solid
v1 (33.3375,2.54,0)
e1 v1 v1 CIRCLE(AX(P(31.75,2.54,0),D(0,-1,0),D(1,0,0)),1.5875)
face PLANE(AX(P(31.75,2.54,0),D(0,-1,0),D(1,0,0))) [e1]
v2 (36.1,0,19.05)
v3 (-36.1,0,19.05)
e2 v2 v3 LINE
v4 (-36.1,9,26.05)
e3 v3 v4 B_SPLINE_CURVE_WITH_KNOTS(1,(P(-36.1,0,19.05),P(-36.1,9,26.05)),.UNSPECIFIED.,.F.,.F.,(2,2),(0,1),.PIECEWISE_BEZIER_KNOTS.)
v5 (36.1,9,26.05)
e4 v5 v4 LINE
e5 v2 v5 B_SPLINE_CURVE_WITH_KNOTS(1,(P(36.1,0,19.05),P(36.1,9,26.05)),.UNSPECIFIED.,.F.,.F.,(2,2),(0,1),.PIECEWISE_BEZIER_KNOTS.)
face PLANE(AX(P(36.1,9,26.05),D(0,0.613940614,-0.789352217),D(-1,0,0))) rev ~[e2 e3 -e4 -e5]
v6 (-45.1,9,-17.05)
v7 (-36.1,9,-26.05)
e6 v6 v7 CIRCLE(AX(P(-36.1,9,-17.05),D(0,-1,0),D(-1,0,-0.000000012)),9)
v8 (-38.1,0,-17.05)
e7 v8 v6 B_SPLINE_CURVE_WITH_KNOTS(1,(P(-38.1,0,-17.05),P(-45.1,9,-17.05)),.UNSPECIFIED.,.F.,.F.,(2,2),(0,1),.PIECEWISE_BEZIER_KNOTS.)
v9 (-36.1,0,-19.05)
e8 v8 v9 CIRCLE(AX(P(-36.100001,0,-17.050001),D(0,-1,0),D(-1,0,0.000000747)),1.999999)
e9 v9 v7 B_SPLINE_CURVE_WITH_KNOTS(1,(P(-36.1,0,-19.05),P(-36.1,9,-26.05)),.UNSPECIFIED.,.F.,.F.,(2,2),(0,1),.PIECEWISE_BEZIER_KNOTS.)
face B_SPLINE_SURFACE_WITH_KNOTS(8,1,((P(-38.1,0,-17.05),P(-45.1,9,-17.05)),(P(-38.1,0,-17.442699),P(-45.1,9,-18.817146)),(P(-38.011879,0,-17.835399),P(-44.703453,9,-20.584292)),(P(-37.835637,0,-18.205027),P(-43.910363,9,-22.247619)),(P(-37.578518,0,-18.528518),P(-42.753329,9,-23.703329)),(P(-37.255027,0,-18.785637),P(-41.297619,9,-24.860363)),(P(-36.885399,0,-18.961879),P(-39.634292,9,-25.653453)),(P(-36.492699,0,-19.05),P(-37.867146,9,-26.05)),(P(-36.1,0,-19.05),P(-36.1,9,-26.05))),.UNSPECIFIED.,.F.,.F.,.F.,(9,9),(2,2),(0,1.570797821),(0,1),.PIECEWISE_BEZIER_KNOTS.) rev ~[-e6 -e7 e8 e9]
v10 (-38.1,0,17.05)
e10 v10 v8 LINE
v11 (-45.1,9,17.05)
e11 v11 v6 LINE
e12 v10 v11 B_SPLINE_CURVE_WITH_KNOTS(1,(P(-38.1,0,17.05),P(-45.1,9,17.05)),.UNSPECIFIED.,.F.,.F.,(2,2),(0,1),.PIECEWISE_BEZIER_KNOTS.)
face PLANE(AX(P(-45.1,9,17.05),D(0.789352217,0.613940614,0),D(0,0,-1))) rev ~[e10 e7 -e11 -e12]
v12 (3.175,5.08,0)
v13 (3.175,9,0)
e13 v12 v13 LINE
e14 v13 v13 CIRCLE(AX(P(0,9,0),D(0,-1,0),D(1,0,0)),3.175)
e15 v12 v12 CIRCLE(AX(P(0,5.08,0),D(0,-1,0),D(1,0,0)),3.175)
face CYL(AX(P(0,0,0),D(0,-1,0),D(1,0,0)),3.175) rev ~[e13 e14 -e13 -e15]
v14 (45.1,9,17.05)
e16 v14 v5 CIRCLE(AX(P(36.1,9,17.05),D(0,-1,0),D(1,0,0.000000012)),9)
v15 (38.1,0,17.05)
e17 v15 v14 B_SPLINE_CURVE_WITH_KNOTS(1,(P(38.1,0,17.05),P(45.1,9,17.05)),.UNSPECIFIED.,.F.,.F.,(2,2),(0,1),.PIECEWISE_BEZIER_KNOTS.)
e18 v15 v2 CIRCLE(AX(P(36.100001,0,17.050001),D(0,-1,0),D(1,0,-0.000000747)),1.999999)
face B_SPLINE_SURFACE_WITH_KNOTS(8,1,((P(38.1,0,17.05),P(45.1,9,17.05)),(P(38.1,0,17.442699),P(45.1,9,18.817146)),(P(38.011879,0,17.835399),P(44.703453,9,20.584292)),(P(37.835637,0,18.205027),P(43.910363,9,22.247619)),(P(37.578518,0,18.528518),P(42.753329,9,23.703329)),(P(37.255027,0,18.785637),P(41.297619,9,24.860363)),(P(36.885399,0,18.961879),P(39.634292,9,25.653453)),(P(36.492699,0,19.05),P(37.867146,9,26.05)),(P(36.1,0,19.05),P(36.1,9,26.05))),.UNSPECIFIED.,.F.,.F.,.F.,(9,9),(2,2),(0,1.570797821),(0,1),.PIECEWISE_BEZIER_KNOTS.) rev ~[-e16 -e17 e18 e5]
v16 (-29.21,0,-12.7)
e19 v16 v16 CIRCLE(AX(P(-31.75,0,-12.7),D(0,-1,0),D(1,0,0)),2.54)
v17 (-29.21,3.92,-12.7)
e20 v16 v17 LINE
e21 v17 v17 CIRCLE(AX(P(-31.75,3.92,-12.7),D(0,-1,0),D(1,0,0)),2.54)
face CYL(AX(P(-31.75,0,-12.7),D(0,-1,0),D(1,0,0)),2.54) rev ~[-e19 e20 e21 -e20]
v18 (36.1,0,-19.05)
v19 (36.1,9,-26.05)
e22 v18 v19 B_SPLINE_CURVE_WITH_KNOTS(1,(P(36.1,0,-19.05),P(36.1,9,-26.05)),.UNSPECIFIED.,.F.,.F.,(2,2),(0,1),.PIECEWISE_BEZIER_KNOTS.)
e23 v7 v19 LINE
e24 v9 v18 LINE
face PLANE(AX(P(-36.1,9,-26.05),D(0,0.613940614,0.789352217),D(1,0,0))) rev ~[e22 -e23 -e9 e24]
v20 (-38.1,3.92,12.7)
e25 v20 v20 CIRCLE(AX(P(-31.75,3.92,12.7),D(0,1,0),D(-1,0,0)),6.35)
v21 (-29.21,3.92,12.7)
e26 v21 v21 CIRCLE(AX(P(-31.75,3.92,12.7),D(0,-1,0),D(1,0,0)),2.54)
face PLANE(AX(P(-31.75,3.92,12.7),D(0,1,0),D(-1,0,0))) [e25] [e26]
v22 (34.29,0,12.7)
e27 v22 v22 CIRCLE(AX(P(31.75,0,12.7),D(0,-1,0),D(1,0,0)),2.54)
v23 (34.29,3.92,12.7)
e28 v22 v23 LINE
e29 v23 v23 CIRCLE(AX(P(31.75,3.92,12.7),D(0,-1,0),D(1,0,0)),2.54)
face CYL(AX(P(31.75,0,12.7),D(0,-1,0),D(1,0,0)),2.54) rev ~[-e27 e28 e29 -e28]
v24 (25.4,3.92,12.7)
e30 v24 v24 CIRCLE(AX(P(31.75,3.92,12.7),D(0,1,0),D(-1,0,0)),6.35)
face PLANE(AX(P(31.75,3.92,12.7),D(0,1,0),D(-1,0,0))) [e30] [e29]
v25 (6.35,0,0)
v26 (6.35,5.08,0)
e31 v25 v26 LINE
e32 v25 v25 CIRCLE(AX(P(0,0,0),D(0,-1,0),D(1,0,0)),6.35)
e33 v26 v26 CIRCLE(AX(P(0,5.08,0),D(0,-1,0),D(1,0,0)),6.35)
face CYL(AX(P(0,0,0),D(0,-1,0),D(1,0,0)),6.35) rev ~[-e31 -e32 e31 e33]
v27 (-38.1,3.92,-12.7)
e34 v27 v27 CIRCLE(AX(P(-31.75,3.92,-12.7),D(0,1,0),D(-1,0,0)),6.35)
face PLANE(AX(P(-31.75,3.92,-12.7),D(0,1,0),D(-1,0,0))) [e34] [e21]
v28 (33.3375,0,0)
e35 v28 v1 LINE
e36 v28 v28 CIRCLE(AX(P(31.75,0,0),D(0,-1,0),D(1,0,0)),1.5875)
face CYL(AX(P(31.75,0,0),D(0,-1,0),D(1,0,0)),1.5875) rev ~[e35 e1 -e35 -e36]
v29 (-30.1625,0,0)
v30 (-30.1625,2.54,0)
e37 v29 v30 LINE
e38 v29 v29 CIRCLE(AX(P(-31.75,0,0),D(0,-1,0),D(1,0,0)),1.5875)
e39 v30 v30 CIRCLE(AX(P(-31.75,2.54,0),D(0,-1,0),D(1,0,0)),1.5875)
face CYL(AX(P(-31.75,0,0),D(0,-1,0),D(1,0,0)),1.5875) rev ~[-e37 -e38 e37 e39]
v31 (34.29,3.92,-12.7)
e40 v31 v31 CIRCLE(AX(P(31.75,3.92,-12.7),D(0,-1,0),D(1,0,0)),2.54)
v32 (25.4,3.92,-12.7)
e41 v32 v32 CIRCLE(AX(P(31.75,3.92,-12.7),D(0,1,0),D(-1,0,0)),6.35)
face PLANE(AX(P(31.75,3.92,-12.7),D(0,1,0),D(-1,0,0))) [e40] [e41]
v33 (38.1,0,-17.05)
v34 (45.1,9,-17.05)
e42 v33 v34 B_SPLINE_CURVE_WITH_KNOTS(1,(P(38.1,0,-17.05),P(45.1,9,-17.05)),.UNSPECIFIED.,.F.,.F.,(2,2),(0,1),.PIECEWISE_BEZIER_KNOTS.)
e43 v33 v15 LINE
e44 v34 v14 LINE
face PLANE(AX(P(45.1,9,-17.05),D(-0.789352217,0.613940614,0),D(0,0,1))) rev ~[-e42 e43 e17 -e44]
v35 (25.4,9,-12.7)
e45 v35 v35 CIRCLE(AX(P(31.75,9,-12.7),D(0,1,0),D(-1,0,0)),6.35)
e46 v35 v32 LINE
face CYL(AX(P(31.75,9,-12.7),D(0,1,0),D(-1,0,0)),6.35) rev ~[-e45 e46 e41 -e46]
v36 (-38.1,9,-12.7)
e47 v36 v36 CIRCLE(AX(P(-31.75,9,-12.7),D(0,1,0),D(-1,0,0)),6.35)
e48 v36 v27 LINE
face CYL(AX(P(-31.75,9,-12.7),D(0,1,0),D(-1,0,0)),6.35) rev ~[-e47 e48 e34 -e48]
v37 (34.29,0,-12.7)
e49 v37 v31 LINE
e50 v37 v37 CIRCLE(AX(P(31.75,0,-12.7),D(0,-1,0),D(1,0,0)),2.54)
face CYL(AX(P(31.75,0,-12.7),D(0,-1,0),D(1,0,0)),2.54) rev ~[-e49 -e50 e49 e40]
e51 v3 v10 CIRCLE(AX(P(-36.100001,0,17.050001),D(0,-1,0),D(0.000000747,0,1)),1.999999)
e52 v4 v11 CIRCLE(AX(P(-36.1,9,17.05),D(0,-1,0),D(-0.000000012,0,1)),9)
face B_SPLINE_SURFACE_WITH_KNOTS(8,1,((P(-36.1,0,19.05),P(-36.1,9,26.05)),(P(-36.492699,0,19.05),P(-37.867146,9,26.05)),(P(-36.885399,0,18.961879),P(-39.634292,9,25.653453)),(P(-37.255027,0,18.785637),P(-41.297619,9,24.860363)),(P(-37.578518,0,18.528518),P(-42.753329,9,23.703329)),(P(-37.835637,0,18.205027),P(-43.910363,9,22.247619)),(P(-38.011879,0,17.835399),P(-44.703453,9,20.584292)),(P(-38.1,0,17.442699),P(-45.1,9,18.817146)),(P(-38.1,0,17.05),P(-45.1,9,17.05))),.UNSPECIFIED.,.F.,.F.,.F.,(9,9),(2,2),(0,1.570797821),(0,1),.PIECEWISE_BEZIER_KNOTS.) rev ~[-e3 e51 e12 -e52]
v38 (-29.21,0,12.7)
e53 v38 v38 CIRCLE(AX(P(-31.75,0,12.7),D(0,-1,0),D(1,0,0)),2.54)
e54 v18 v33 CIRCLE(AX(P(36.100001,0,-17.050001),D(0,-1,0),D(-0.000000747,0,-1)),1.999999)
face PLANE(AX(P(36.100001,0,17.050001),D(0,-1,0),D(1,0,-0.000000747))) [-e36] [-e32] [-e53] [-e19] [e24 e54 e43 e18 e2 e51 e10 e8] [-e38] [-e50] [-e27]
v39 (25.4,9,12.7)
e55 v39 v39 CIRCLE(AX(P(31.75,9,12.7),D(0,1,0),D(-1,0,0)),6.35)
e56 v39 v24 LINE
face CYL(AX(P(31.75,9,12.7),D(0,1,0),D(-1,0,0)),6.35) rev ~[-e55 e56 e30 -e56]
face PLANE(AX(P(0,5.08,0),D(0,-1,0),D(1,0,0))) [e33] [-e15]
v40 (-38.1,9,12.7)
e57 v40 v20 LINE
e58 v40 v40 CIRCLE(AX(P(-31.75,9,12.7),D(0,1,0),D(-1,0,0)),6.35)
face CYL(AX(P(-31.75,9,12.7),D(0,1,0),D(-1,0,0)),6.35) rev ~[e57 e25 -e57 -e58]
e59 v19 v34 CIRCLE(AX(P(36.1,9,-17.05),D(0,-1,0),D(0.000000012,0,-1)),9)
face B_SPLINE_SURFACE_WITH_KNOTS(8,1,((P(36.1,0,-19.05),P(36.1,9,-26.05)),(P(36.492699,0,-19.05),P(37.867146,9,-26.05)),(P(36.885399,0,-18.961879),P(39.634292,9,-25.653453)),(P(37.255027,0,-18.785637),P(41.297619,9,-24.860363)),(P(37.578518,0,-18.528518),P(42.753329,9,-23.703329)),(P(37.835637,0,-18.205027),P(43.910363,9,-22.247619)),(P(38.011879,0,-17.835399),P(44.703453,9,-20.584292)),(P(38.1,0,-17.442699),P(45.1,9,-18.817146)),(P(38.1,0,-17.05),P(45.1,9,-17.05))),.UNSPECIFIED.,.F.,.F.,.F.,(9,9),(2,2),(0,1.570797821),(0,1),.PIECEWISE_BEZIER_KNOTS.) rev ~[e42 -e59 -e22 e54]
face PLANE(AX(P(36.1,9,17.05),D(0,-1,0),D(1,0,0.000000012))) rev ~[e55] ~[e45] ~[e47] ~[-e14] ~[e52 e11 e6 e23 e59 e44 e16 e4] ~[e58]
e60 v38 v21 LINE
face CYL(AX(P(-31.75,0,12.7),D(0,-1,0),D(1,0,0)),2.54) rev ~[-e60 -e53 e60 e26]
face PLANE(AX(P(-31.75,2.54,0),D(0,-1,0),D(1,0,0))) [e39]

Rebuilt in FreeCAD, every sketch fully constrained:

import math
import FreeCAD as App
import Part
import Sketcher
from FreeCAD import Vector
Q = App.Units.Quantity

doc = App.newDocument("Part")
body = doc.addObject("PartDesign::Body", "Body")

# Sketch on XZ plane
sketch1 = body.newObject("Sketcher::SketchObject", "Sketch")
sketch1.AttachmentSupport = (doc.getObject("XZ_Plane"), [""])
sketch1.MapMode = "FlatFace"
sketch1.addGeometry([
    Part.ArcOfCircle(Part.Circle(Vector(36.1, 17.1, 0), Vector(0, 0, 1), 2), math.radians(0), math.radians(90)),  # 0
    Part.LineSegment(Vector(36.1, 19.1, 0), Vector(-36.1, 19.1, 0)),  # 1
    Part.ArcOfCircle(Part.Circle(Vector(-36.1, 17.1, 0), Vector(0, 0, 1), 2), math.radians(90), math.radians(180)),  # 2
    Part.LineSegment(Vector(-38.1, 17.1, 0), Vector(-38.1, -17.1, 0)),  # 3
    Part.ArcOfCircle(Part.Circle(Vector(-36.1, -17.1, 0), Vector(0, 0, 1), 2), math.radians(180), math.radians(270)),  # 4
    Part.LineSegment(Vector(-36.1, -19.1, 0), Vector(36.1, -19.1, 0)),  # 5
    Part.ArcOfCircle(Part.Circle(Vector(36.1, -17.1, 0), Vector(0, 0, 1), 2), math.radians(-90), math.radians(0)),  # 6
    Part.LineSegment(Vector(38.1, -17.1, 0), Vector(38.1, 17.1, 0)),  # 7
], False)
sketch1.addConstraint([
    Sketcher.Constraint("Tangent", 0, 2, 1, 1),
    Sketcher.Constraint("Tangent", 1, 2, 2, 1),
    Sketcher.Constraint("Tangent", 2, 2, 3, 1),
    Sketcher.Constraint("Tangent", 3, 2, 4, 1),
    Sketcher.Constraint("Tangent", 4, 2, 5, 1),
    Sketcher.Constraint("Tangent", 5, 2, 6, 1),
    Sketcher.Constraint("Tangent", 6, 2, 7, 1),
    Sketcher.Constraint("Tangent", 7, 2, 0, 1),
    Sketcher.Constraint("Horizontal", 1),
    Sketcher.Constraint("Vertical", 3),
    Sketcher.Constraint("Horizontal", 5),
    Sketcher.Constraint("Vertical", 7),
    Sketcher.Constraint("Equal", 0, 2),
    Sketcher.Constraint("Equal", 2, 4),
    Sketcher.Constraint("Equal", 4, 6),
    Sketcher.Constraint("Symmetric", 0, 3, 4, 3, -1, 1),
    Sketcher.Constraint("DistanceX", 2, 2, -1, 1, Q("1.5 in")),
    Sketcher.Constraint("DistanceY", 4, 2, 1, 2, Q("1.5 in")),
    Sketcher.Constraint("Radius", 0, Q("1.999999 mm")),
])

# Sketch on XZ plane
sketch2 = body.newObject("Sketcher::SketchObject", "Sketch001")
sketch2.AttachmentSupport = (doc.getObject("XZ_Plane"), [""])
sketch2.MapMode = "FlatFace"
sketch2.AttachmentOffset = App.Placement(Vector(0, 0, -9), App.Rotation())
sketch2.addGeometry([
    Part.LineSegment(Vector(36, 26, 0), Vector(-36, 26, 0)),  # 0
    Part.ArcOfCircle(Part.Circle(Vector(-36, 17, 0), Vector(0, 0, 1), 9), math.radians(90), math.radians(180)),  # 1
    Part.LineSegment(Vector(-45, 17, 0), Vector(-45, -17, 0)),  # 2
    Part.ArcOfCircle(Part.Circle(Vector(-36, -17, 0), Vector(0, 0, 1), 9), math.radians(-180), math.radians(-90)),  # 3
    Part.LineSegment(Vector(-36, -26, 0), Vector(36, -26, 0)),  # 4
    Part.ArcOfCircle(Part.Circle(Vector(36, -17, 0), Vector(0, 0, 1), 9), math.radians(-90), math.radians(0)),  # 5
    Part.LineSegment(Vector(45, -17, 0), Vector(45, 17, 0)),  # 6
    Part.ArcOfCircle(Part.Circle(Vector(36, 17, 0), Vector(0, 0, 1), 9), math.radians(0), math.radians(90)),  # 7
], False)
sketch2.addConstraint([
    Sketcher.Constraint("Tangent", 0, 2, 1, 1),
    Sketcher.Constraint("Tangent", 1, 2, 2, 1),
    Sketcher.Constraint("Tangent", 2, 2, 3, 1),
    Sketcher.Constraint("Tangent", 3, 2, 4, 1),
    Sketcher.Constraint("Tangent", 4, 2, 5, 1),
    Sketcher.Constraint("Tangent", 5, 2, 6, 1),
    Sketcher.Constraint("Tangent", 6, 2, 7, 1),
    Sketcher.Constraint("Tangent", 7, 2, 0, 1),
    Sketcher.Constraint("Horizontal", 0),
    Sketcher.Constraint("Vertical", 2),
    Sketcher.Constraint("Horizontal", 4),
    Sketcher.Constraint("Vertical", 6),
    Sketcher.Constraint("Equal", 1, 3),
    Sketcher.Constraint("Equal", 3, 5),
    Sketcher.Constraint("Equal", 5, 7),
    Sketcher.Constraint("Symmetric", 1, 3, 5, 3, -1, 1),
    Sketcher.Constraint("Radius", 1, Q("9 mm")),
    Sketcher.Constraint("DistanceX", 0, 2, 0, 1, Q("72.2 mm")),
    Sketcher.Constraint("DistanceY", 2, 2, 2, 1, Q("34.1 mm")),
])

additiveloft = body.newObject("PartDesign::AdditiveLoft", "AdditiveLoft")
additiveloft.Profile = sketch1
additiveloft.Sections = [sketch2]

# Sketch on XZ plane
sketch3 = body.newObject("Sketcher::SketchObject", "Sketch002")
sketch3.AttachmentSupport = (doc.getObject("XZ_Plane"), [""])
sketch3.MapMode = "FlatFace"
sketch3.addGeometry([
    Part.Circle(Vector(31.8, -12.7, 0), Vector(0, 0, 1), 2.5),  # 0
    Part.Circle(Vector(31.8, 12.7, 0), Vector(0, 0, 1), 2.5),  # 1
    Part.Circle(Vector(-31.8, -12.7, 0), Vector(0, 0, 1), 2.5),  # 2
    Part.Circle(Vector(-31.8, 12.7, 0), Vector(0, 0, 1), 2.5),  # 3
    Part.Circle(Vector(0, 0, 0), Vector(0, 0, 1), 3.2),  # 4
], False)
sketch3.addConstraint([
    Sketcher.Constraint("Coincident", 4, 3, -1, 1),
    Sketcher.Constraint("Equal", 0, 1),
    Sketcher.Constraint("Equal", 1, 2),
    Sketcher.Constraint("Equal", 2, 3),
    Sketcher.Constraint("Symmetric", 1, 3, 2, 3, -1, 1),
    Sketcher.Constraint("Symmetric", 0, 3, 3, 3, -1, 1),
    Sketcher.Constraint("Symmetric", 0, 3, 2, 3, -2),
    Sketcher.Constraint("Diameter", 0, Q("0.2 in")),
    Sketcher.Constraint("Diameter", 4, Q("0.25 in")),
    Sketcher.Constraint("DistanceY", 0, 3, 1, 3, Q("1 in")),
    Sketcher.Constraint("DistanceX", 2, 3, 0, 3, Q("2.5 in")),
])
pocket1 = body.newObject("PartDesign::Pocket", "Pocket")
pocket1.Profile = sketch3
pocket1.Type = "ThroughAll"

# Sketch on XZ plane
sketch4 = body.newObject("Sketcher::SketchObject", "Sketch003")
sketch4.AttachmentSupport = (doc.getObject("XZ_Plane"), [""])
sketch4.MapMode = "FlatFace"
sketch4.addGeometry([
    Part.Circle(Vector(31.8, 0, 0), Vector(0, 0, 1), 1.6),
    Part.Circle(Vector(-31.8, 0, 0), Vector(0, 0, 1), 1.6),
], False)
sketch4.addConstraint([
    Sketcher.Constraint("Equal", 0, 1),
    Sketcher.Constraint("Symmetric", 0, 3, 1, 3, -1, 1),
    Sketcher.Constraint("PointOnObject", 0, 3, -1),
    Sketcher.Constraint("Diameter", 0, Q("0.125 in")),
    Sketcher.Constraint("DistanceX", 1, 3, 0, 3, Q("2.5 in")),
])
pocket2 = body.newObject("PartDesign::Pocket", "Pocket001")
pocket2.Profile = sketch4
pocket2.Length = Q("0.1 in")

# Sketch on XZ plane
sketch5 = body.newObject("Sketcher::SketchObject", "Sketch004")
sketch5.AttachmentSupport = (doc.getObject("XZ_Plane"), [""])
sketch5.MapMode = "FlatFace"
sketch5.addGeometry(Part.Circle(Vector(0, 0, 0), Vector(0, 0, 1), 6), False)
sketch5.addConstraint([
    Sketcher.Constraint("Coincident", 0, 3, -1, 1),
    Sketcher.Constraint("Diameter", 0, Q("0.5 in")),
])
pocket3 = body.newObject("PartDesign::Pocket", "Pocket002")
pocket3.Profile = sketch5
pocket3.Length = Q("0.2 in")

# Sketch on XZ plane
sketch6 = body.newObject("Sketcher::SketchObject", "Sketch005")
sketch6.AttachmentSupport = (doc.getObject("XZ_Plane"), [""])
sketch6.MapMode = "FlatFace"
sketch6.AttachmentOffset = App.Placement(Vector(0, 0, -9), App.Rotation())
sketch6.addGeometry([
    Part.Circle(Vector(32, 13, 0), Vector(0, 0, 1), 6),
    Part.Circle(Vector(32, -13, 0), Vector(0, 0, 1), 6),
    Part.Circle(Vector(-32, 13, 0), Vector(0, 0, 1), 6),
    Part.Circle(Vector(-32, -13, 0), Vector(0, 0, 1), 6),
], False)
sketch6.addConstraint([
    Sketcher.Constraint("Equal", 0, 1),
    Sketcher.Constraint("Equal", 1, 2),
    Sketcher.Constraint("Equal", 2, 3),
    Sketcher.Constraint("Symmetric", 1, 3, 2, 3, -1, 1),
    Sketcher.Constraint("Symmetric", 0, 3, 3, 3, -1, 1),
    Sketcher.Constraint("Symmetric", 0, 3, 2, 3, -2),
    Sketcher.Constraint("Diameter", 0, Q("0.5 in")),
    Sketcher.Constraint("DistanceY", 1, 3, 0, 3, Q("1 in")),
    Sketcher.Constraint("DistanceX", 2, 3, 0, 3, Q("2.5 in")),
])
pocket4 = body.newObject("PartDesign::Pocket", "Pocket003")
pocket4.Profile = sketch6
pocket4.Length = Q("0.2 in")
pocket4.Reversed = True

doc.recompute()
